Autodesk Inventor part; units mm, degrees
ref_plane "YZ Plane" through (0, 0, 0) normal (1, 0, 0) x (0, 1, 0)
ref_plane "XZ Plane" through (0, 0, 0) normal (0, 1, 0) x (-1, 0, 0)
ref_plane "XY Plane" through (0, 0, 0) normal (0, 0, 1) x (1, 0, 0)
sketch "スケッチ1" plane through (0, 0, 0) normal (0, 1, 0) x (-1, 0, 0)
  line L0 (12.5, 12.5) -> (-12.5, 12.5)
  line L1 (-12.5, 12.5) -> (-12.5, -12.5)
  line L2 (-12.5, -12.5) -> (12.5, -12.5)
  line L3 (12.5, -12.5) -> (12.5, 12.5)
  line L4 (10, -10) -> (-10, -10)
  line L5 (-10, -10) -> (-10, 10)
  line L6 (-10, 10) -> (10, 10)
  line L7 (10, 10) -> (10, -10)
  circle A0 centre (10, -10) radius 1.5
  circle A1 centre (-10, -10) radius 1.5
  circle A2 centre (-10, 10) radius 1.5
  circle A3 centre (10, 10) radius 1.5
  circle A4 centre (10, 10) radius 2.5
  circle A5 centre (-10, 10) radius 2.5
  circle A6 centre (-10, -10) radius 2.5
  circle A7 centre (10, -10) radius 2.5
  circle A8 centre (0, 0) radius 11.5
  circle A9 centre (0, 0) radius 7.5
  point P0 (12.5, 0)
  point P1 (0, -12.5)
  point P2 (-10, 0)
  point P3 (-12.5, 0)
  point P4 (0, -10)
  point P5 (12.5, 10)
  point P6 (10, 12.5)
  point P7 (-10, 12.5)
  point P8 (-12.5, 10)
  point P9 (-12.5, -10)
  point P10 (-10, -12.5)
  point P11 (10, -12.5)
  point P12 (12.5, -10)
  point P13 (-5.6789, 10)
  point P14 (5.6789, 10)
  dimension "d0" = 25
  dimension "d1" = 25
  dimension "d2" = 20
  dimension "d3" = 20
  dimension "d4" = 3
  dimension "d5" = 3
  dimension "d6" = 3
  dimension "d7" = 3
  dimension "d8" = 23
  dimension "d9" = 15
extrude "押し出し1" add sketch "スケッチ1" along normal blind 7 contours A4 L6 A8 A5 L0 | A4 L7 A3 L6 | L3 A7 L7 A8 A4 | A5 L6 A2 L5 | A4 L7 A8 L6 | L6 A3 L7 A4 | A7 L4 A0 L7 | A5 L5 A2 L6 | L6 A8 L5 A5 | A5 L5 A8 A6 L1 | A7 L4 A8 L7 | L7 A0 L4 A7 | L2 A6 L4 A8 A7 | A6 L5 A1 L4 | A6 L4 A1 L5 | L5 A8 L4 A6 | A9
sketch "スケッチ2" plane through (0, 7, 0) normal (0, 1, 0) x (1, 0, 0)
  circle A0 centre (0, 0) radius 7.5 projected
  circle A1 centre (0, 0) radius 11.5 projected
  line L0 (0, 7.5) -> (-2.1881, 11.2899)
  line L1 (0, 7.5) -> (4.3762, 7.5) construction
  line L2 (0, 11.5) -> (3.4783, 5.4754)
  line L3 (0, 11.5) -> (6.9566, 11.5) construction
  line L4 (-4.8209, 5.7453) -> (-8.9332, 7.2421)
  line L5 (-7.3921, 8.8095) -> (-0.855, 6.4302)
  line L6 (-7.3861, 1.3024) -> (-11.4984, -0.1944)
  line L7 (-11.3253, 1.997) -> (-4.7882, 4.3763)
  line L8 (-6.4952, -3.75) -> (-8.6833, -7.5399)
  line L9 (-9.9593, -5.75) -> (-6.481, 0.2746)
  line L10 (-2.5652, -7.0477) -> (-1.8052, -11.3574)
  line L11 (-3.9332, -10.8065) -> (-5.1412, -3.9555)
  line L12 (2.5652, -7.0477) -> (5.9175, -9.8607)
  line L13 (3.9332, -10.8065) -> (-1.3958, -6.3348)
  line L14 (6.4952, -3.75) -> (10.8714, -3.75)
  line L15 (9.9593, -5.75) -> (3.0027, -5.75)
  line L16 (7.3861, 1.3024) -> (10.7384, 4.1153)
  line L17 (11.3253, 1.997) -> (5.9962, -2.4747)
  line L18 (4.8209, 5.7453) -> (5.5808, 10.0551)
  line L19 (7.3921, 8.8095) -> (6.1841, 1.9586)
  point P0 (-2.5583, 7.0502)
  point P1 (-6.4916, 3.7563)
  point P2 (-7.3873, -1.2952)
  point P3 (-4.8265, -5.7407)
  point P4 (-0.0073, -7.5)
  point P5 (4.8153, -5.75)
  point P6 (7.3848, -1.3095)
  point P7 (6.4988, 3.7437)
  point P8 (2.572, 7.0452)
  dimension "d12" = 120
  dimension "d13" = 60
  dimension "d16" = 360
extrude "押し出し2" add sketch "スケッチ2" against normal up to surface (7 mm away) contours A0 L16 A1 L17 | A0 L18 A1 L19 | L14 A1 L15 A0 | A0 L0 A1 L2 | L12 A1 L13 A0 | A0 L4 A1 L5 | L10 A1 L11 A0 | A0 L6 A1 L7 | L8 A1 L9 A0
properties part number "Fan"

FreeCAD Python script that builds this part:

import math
import FreeCAD as App
import Part
import Sketcher
from FreeCAD import Vector
Q = App.Units.Quantity

doc = App.newDocument("Part")
body = doc.addObject("PartDesign::Body", "Body")
body.AllowCompound = True

# Sketch on XZ plane
sketch1 = doc.addObject("Sketcher::SketchObject", "Sketch")
body.addObject(sketch1)
sketch1.AttachmentSupport = (doc.XZ_Plane, [""])
sketch1.MapMode = "FlatFace"
sketch1.addGeometry(Part.LineSegment(Vector(-10, 12.5, 0), Vector(10, 12.5, 0)), False)
sketch1.addGeometry(Part.ArcOfCircle(Part.Circle(Vector(10, 10, 0), Vector(0, 0, 1), 2.5), math.radians(0), math.radians(90)), False)
sketch1.addGeometry(Part.LineSegment(Vector(12.5, 10, 0), Vector(12.5, -10, 0)), False)
sketch1.addGeometry(Part.ArcOfCircle(Part.Circle(Vector(10, -10, 0), Vector(0, 0, 1), 2.5), math.radians(-90), math.radians(0)), False)
sketch1.addGeometry(Part.LineSegment(Vector(10, -12.5, 0), Vector(-10, -12.5, 0)), False)
sketch1.addGeometry(Part.ArcOfCircle(Part.Circle(Vector(-10, -10, 0), Vector(0, 0, 1), 2.5), math.radians(180), math.radians(270)), False)
sketch1.addGeometry(Part.LineSegment(Vector(-12.5, -10, 0), Vector(-12.5, 10, 0)), False)
sketch1.addGeometry(Part.ArcOfCircle(Part.Circle(Vector(-10, 10, 0), Vector(0, 0, 1), 2.5), math.radians(90), math.radians(180)), False)
sketch1.addGeometry(Part.Circle(Vector(0, 0, 0), Vector(0, 0, 1), 11.5), False)
sketch1.addGeometry(Part.Circle(Vector(-10, 10, 0), Vector(0, 0, 1), 1.5), False)
sketch1.addGeometry(Part.Circle(Vector(10, 10, 0), Vector(0, 0, 1), 1.5), False)
sketch1.addGeometry(Part.Circle(Vector(-10, -10, 0), Vector(0, 0, 1), 1.5), False)
sketch1.addGeometry(Part.Circle(Vector(10, -10, 0), Vector(0, 0, 1), 1.5), False)
sketch1.addGeometry(Part.Circle(Vector(0, 0, 0), Vector(0, 0, 1), 7.5), False)
sketch1.addConstraint(Sketcher.Constraint("Tangent", 0, 2, 1, 2))
sketch1.addConstraint(Sketcher.Constraint("Tangent", 1, 1, 2, 1))
sketch1.addConstraint(Sketcher.Constraint("Tangent", 2, 2, 3, 2))
sketch1.addConstraint(Sketcher.Constraint("Tangent", 3, 1, 4, 1))
sketch1.addConstraint(Sketcher.Constraint("Tangent", 4, 2, 5, 2))
sketch1.addConstraint(Sketcher.Constraint("Tangent", 5, 1, 6, 1))
sketch1.addConstraint(Sketcher.Constraint("Tangent", 6, 2, 7, 2))
sketch1.addConstraint(Sketcher.Constraint("Tangent", 7, 1, 0, 1))
sketch1.addConstraint(Sketcher.Constraint("Horizontal", 0))
sketch1.addConstraint(Sketcher.Constraint("Vertical", 2))
sketch1.addConstraint(Sketcher.Constraint("Horizontal", 4))
sketch1.addConstraint(Sketcher.Constraint("Vertical", 6))
sketch1.addConstraint(Sketcher.Constraint("Coincident", 8, 3, -1, 1))
sketch1.addConstraint(Sketcher.Constraint("Coincident", 13, 3, -1, 1))
sketch1.addConstraint(Sketcher.Constraint("Coincident", 9, 3, 7, 3))
sketch1.addConstraint(Sketcher.Constraint("Coincident", 10, 3, 1, 3))
sketch1.addConstraint(Sketcher.Constraint("Coincident", 11, 3, 5, 3))
sketch1.addConstraint(Sketcher.Constraint("Coincident", 12, 3, 3, 3))
sketch1.addConstraint(Sketcher.Constraint("Equal", 1, 3))
sketch1.addConstraint(Sketcher.Constraint("Equal", 3, 5))
sketch1.addConstraint(Sketcher.Constraint("Equal", 5, 7))
sketch1.addConstraint(Sketcher.Constraint("Equal", 9, 10))
sketch1.addConstraint(Sketcher.Constraint("Equal", 10, 11))
sketch1.addConstraint(Sketcher.Constraint("Equal", 11, 12))
sketch1.addConstraint(Sketcher.Constraint("Symmetric", 1, 3, 5, 3, -1, 1))
sketch1.addConstraint(Sketcher.Constraint("Equal", 4, 2))
sketch1.addConstraint(Sketcher.Constraint("Diameter", 8, 23.0))
sketch1.addConstraint(Sketcher.Constraint("Diameter", 9, 3.0))
sketch1.addConstraint(Sketcher.Constraint("Diameter", 13, 15.0))
sketch1.addConstraint(Sketcher.Constraint("DistanceX", 0, 1, 0, 2, 20.0))
sketch1.addConstraint(Sketcher.Constraint("Radius", 1, 2.5))
pad1 = doc.addObject("PartDesign::Pad", "Pad")
body.addObject(pad1)
pad1.Profile = sketch1
pad1.Length = 7
pad1.Reversed = True

# Sketch on XZ plane
sketch2 = doc.addObject("Sketcher::SketchObject", "Sketch001")
body.addObject(sketch2)
sketch2.AttachmentSupport = (doc.XZ_Plane, [""])
sketch2.MapMode = "FlatFace"
sketch2.AttachmentOffset = App.Placement(Vector(0, 0, -7), App.Rotation())
sketch2.addGeometry(Part.ArcOfCircle(Part.Circle(Vector(0, 0, 0), Vector(0, 0, 1), 7.5), math.radians(-10), math.radians(10)), False)
sketch2.addGeometry(Part.LineSegment(Vector(7.4, 1.3, 0), Vector(11.3, -2, 0)), False)
sketch2.addGeometry(Part.ArcOfCircle(Part.Circle(Vector(0, 0, 0), Vector(0, 0, 1), 11.5), math.radians(-20.97), math.radians(-10)), False)
sketch2.addGeometry(Part.LineSegment(Vector(10.7, -4.1, 0), Vector(7.4, -1.3, 0)), False)
sketch2.addGeometry(Part.ArcOfCircle(Part.Circle(Vector(0, 0, 0), Vector(0, 0, 1), 7.5), math.radians(-50), math.radians(-30)), False)
sketch2.addGeometry(Part.LineSegment(Vector(6.5, -3.7, 0), Vector(7.4, -8.8, 0)), False)
sketch2.addGeometry(Part.ArcOfCircle(Part.Circle(Vector(0, 0, 0), Vector(0, 0, 1), 11.5), math.radians(-60.97), math.radians(-50)), False)
sketch2.addGeometry(Part.LineSegment(Vector(5.6, -10.1, 0), Vector(4.8, -5.7, 0)), False)
sketch2.addGeometry(Part.LineSegment(Vector(10.9, 3.8, 0), Vector(6.5, 3.8, 0)), False)
sketch2.addGeometry(Part.ArcOfCircle(Part.Circle(Vector(0, 0, 0), Vector(0, 0, 1), 7.5), math.radians(30), math.radians(50)), False)
sketch2.addGeometry(Part.LineSegment(Vector(4.8, 5.8, 0), Vector(10, 5.8, 0)), False)
sketch2.addGeometry(Part.ArcOfCircle(Part.Circle(Vector(0, 0, 0), Vector(0, 0, 1), 11.5), math.radians(19.03), math.radians(30)), False)
sketch2.addGeometry(Part.ArcOfCircle(Part.Circle(Vector(0, 0, 0), Vector(0, 0, 1), 7.5), math.radians(-90), math.radians(-70)), False)
sketch2.addGeometry(Part.LineSegment(Vector(2.6, -7, 0), Vector(0, -11.5, 0)), False)
sketch2.addGeometry(Part.ArcOfCircle(Part.Circle(Vector(0, 0, 0), Vector(0, 0, 1), 11.5), math.radians(-100.97), math.radians(-90)), False)
sketch2.addGeometry(Part.LineSegment(Vector(-2.2, -11.3, 0), Vector(0, -7.5, 0)), False)
sketch2.addGeometry(Part.LineSegment(Vector(5.9, 9.9, 0), Vector(2.6, 7, 0)), False)
sketch2.addGeometry(Part.ArcOfCircle(Part.Circle(Vector(0, 0, 0), Vector(0, 0, 1), 7.5), math.radians(70), math.radians(90)), False)
sketch2.addGeometry(Part.LineSegment(Vector(0, 7.5, 0), Vector(3.9, 10.8, 0)), False)
sketch2.addGeometry(Part.ArcOfCircle(Part.Circle(Vector(0, 0, 0), Vector(0, 0, 1), 11.5), math.radians(59.03), math.radians(70)), False)
sketch2.addGeometry(Part.ArcOfCircle(Part.Circle(Vector(0, 0, 0), Vector(0, 0, 1), 7.5), math.radians(-130), math.radians(-110)), False)
sketch2.addGeometry(Part.LineSegment(Vector(-2.6, -7.1, 0), Vector(-7.4, -8.8, 0)), False)
sketch2.addGeometry(Part.ArcOfCircle(Part.Circle(Vector(0, 0, 0), Vector(0, 0, 1), 11.5), math.radians(-140.97), math.radians(-130)), False)
sketch2.addGeometry(Part.LineSegment(Vector(-8.9, -7.2, 0), Vector(-4.8, -5.7, 0)), False)
sketch2.addGeometry(Part.LineSegment(Vector(-1.8, 11.4, 0), Vector(-2.6, 7, 0)), False)
sketch2.addGeometry(Part.ArcOfCircle(Part.Circle(Vector(0, 0, 0), Vector(0, 0, 1), 7.5), math.radians(110), math.radians(130)), False)
sketch2.addGeometry(Part.LineSegment(Vector(-4.8, 5.7, 0), Vector(-3.9, 10.8, 0)), False)
sketch2.addGeometry(Part.ArcOfCircle(Part.Circle(Vector(0, 0, 0), Vector(0, 0, 1), 11.5), math.radians(99.03), math.radians(110)), False)
sketch2.addGeometry(Part.ArcOfCircle(Part.Circle(Vector(0, 0, 0), Vector(0, 0, 1), 7.5), math.radians(-170), math.radians(-150)), False)
sketch2.addGeometry(Part.LineSegment(Vector(-6.5, -3.8, 0), Vector(-11.3, -2, 0)), False)
sketch2.addGeometry(Part.ArcOfCircle(Part.Circle(Vector(0, 0, 0), Vector(0, 0, 1), 11.5), math.radians(179.03), math.radians(190)), False)
sketch2.addGeometry(Part.LineSegment(Vector(-11.5, 0.2, 0), Vector(-7.4, -1.3, 0)), False)
sketch2.addGeometry(Part.LineSegment(Vector(-8.7, 7.5, 0), Vector(-6.5, 3.8, 0)), False)
sketch2.addGeometry(Part.ArcOfCircle(Part.Circle(Vector(0, 0, 0), Vector(0, 0, 1), 7.5), math.radians(150), math.radians(170)), False)
sketch2.addGeometry(Part.LineSegment(Vector(-7.4, 1.3, 0), Vector(-10, 5.8, 0)), False)
sketch2.addGeometry(Part.ArcOfCircle(Part.Circle(Vector(0, 0, 0), Vector(0, 0, 1), 11.5), math.radians(139.03), math.radians(150)), False)
sketch2.addConstraint(Sketcher.Constraint("Coincident", 0, 2, 1, 1))
sketch2.addConstraint(Sketcher.Constraint("Coincident", 1, 2, 2, 2))
sketch2.addConstraint(Sketcher.Constraint("Coincident", 2, 1, 3, 1))
sketch2.addConstraint(Sketcher.Constraint("Coincident", 3, 2, 0, 1))
sketch2.addConstraint(Sketcher.Constraint("Coincident", 4, 2, 5, 1))
sketch2.addConstraint(Sketcher.Constraint("Coincident", 5, 2, 6, 2))
sketch2.addConstraint(Sketcher.Constraint("Coincident", 6, 1, 7, 1))
sketch2.addConstraint(Sketcher.Constraint("Coincident", 7, 2, 4, 1))
sketch2.addConstraint(Sketcher.Constraint("Coincident", 8, 2, 9, 1))
sketch2.addConstraint(Sketcher.Constraint("Coincident", 9, 2, 10, 1))
sketch2.addConstraint(Sketcher.Constraint("Coincident", 10, 2, 11, 2))
sketch2.addConstraint(Sketcher.Constraint("Coincident", 11, 1, 8, 1))
sketch2.addConstraint(Sketcher.Constraint("Coincident", 12, 2, 13, 1))
sketch2.addConstraint(Sketcher.Constraint("Coincident", 13, 2, 14, 2))
sketch2.addConstraint(Sketcher.Constraint("Coincident", 14, 1, 15, 1))
sketch2.addConstraint(Sketcher.Constraint("Coincident", 15, 2, 12, 1))
sketch2.addConstraint(Sketcher.Constraint("Coincident", 16, 2, 17, 1))
sketch2.addConstraint(Sketcher.Constraint("Coincident", 17, 2, 18, 1))
sketch2.addConstraint(Sketcher.Constraint("Coincident", 18, 2, 19, 2))
sketch2.addConstraint(Sketcher.Constraint("Coincident", 19, 1, 16, 1))
sketch2.addConstraint(Sketcher.Constraint("Coincident", 20, 2, 21, 1))
sketch2.addConstraint(Sketcher.Constraint("Coincident", 21, 2, 22, 2))
sketch2.addConstraint(Sketcher.Constraint("Coincident", 22, 1, 23, 1))
sketch2.addConstraint(Sketcher.Constraint("Coincident", 23, 2, 20, 1))
sketch2.addConstraint(Sketcher.Constraint("Coincident", 24, 2, 25, 1))
sketch2.addConstraint(Sketcher.Constraint("Coincident", 25, 2, 26, 1))
sketch2.addConstraint(Sketcher.Constraint("Coincident", 26, 2, 27, 2))
sketch2.addConstraint(Sketcher.Constraint("Coincident", 27, 1, 24, 1))
sketch2.addConstraint(Sketcher.Constraint("Coincident", 28, 2, 29, 1))
sketch2.addConstraint(Sketcher.Constraint("Coincident", 29, 2, 30, 2))
sketch2.addConstraint(Sketcher.Constraint("Coincident", 30, 1, 31, 1))
sketch2.addConstraint(Sketcher.Constraint("Coincident", 31, 2, 28, 1))
sketch2.addConstraint(Sketcher.Constraint("Coincident", 32, 2, 33, 1))
sketch2.addConstraint(Sketcher.Constraint("Coincident", 33, 2, 34, 1))
sketch2.addConstraint(Sketcher.Constraint("Coincident", 34, 2, 35, 2))
sketch2.addConstraint(Sketcher.Constraint("Coincident", 35, 1, 32, 1))
sketch2.addConstraint(Sketcher.Constraint("Horizontal", 8))
sketch2.addConstraint(Sketcher.Constraint("Horizontal", 10))
sketch2.addConstraint(Sketcher.Constraint("Coincident", 0, 3, -1, 1))
sketch2.addConstraint(Sketcher.Constraint("Coincident", 2, 3, -1, 1))
sketch2.addConstraint(Sketcher.Constraint("Coincident", 4, 3, -1, 1))
sketch2.addConstraint(Sketcher.Constraint("Coincident", 6, 3, -1, 1))
sketch2.addConstraint(Sketcher.Constraint("Coincident", 9, 3, -1, 1))
sketch2.addConstraint(Sketcher.Constraint("Coincident", 11, 3, -1, 1))
sketch2.addConstraint(Sketcher.Constraint("Coincident", 12, 3, -1, 1))
sketch2.addConstraint(Sketcher.Constraint("Coincident", 14, 3, -1, 1))
sketch2.addConstraint(Sketcher.Constraint("Coincident", 17, 3, -1, 1))
sketch2.addConstraint(Sketcher.Constraint("Coincident", 19, 3, -1, 1))
sketch2.addConstraint(Sketcher.Constraint("Coincident", 20, 3, -1, 1))
sketch2.addConstraint(Sketcher.Constraint("Coincident", 22, 3, -1, 1))
sketch2.addConstraint(Sketcher.Constraint("Coincident", 25, 3, -1, 1))
sketch2.addConstraint(Sketcher.Constraint("Coincident", 27, 3, -1, 1))
sketch2.addConstraint(Sketcher.Constraint("Coincident", 28, 3, -1, 1))
sketch2.addConstraint(Sketcher.Constraint("Coincident", 30, 3, -1, 1))
sketch2.addConstraint(Sketcher.Constraint("Coincident", 33, 3, -1, 1))
sketch2.addConstraint(Sketcher.Constraint("Coincident", 35, 3, -1, 1))
sketch2.addConstraint(Sketcher.Constraint("Equal", 0, 4))
sketch2.addConstraint(Sketcher.Constraint("Equal", 2, 6))
sketch2.addConstraint(Sketcher.Constraint("Equal", 4, 9))
sketch2.addConstraint(Sketcher.Constraint("Equal", 6, 11))
sketch2.addConstraint(Sketcher.Constraint("Equal", 9, 12))
sketch2.addConstraint(Sketcher.Constraint("Equal", 11, 14))
sketch2.addConstraint(Sketcher.Constraint("Equal", 12, 17))
sketch2.addConstraint(Sketcher.Constraint("Equal", 14, 19))
sketch2.addConstraint(Sketcher.Constraint("Equal", 17, 20))
sketch2.addConstraint(Sketcher.Constraint("Equal", 19, 22))
sketch2.addConstraint(Sketcher.Constraint("Equal", 20, 25))
sketch2.addConstraint(Sketcher.Constraint("Equal", 22, 27))
sketch2.addConstraint(Sketcher.Constraint("Equal", 25, 28))
sketch2.addConstraint(Sketcher.Constraint("Equal", 27, 30))
sketch2.addConstraint(Sketcher.Constraint("Equal", 28, 33))
sketch2.addConstraint(Sketcher.Constraint("Equal", 30, 35))
sketch2.addConstraint(Sketcher.Constraint("PointOnObject", 13, 2, -2))
sketch2.addConstraint(Sketcher.Constraint("PointOnObject", 15, 2, -2))
sketch2.addConstraint(Sketcher.Constraint("Parallel", 1, 3))
sketch2.addConstraint(Sketcher.Constraint("Parallel", 5, 7))
sketch2.addConstraint(Sketcher.Constraint("Parallel", 13, 15))
sketch2.addConstraint(Sketcher.Constraint("Parallel", 16, 18))
sketch2.addConstraint(Sketcher.Constraint("Parallel", 21, 23))
sketch2.addConstraint(Sketcher.Constraint("Parallel", 24, 26))
sketch2.addConstraint(Sketcher.Constraint("Parallel", 29, 31))
sketch2.addConstraint(Sketcher.Constraint("Parallel", 32, 34))
sketch2.addConstraint(Sketcher.Constraint("Horizontal", 5, 2, 21, 2))
sketch2.addConstraint(Sketcher.Constraint("Horizontal", 7, 2, 23, 2))
sketch2.addConstraint(Sketcher.Constraint("Horizontal", 16, 2, 24, 2))
sketch2.addConstraint(Sketcher.Constraint("Horizontal", 18, 2, 26, 2))
sketch2.addConstraint(Sketcher.Constraint("Horizontal", 1, 2, 29, 2))
sketch2.addConstraint(Sketcher.Constraint("Horizontal", 3, 2, 31, 2))
sketch2.addConstraint(Sketcher.Constraint("Horizontal", 11, 1, 32, 2))
sketch2.addConstraint(Sketcher.Constraint("Horizontal", 10, 2, 34, 2))
sketch2.addConstraint(Sketcher.Constraint("Equal", 1, 5))
sketch2.addConstraint(Sketcher.Constraint("Equal", 3, 7))
sketch2.addConstraint(Sketcher.Constraint("Equal", 5, 13))
sketch2.addConstraint(Sketcher.Constraint("Equal", 7, 15))
sketch2.addConstraint(Sketcher.Constraint("Equal", 15, 16))
sketch2.addConstraint(Sketcher.Constraint("Equal", 13, 18))
sketch2.addConstraint(Sketcher.Constraint("Equal", 18, 21))
sketch2.addConstraint(Sketcher.Constraint("Equal", 23, 24))
sketch2.addConstraint(Sketcher.Constraint("Equal", 26, 29))
sketch2.addConstraint(Sketcher.Constraint("Equal", 31, 32))
sketch2.addConstraint(Sketcher.Constraint("Equal", 29, 34))
sketch2.addConstraint(Sketcher.Constraint("Angle", 13, Q("-120 deg")))
sketch2.addConstraint(Sketcher.Constraint("Angle", 32, Q("-60 deg")))
sketch2.addConstraint(Sketcher.Constraint("Radius", 0, 7.5))
sketch2.addConstraint(Sketcher.Constraint("Radius", 2, 11.5))
sketch2.addConstraint(Sketcher.Constraint("Angle", 1, Q("-40.0003 deg")))
sketch2.addConstraint(Sketcher.Constraint("Angle", 5, Q("-80 deg")))
sketch2.addConstraint(Sketcher.Constraint("Angle", 16, Q("-139.9991 deg")))
pad2 = doc.addObject("PartDesign::Pad", "Pad001")
body.addObject(pad2)
pad2.Profile = sketch2
pad2.Length = 7

doc.recompute()
